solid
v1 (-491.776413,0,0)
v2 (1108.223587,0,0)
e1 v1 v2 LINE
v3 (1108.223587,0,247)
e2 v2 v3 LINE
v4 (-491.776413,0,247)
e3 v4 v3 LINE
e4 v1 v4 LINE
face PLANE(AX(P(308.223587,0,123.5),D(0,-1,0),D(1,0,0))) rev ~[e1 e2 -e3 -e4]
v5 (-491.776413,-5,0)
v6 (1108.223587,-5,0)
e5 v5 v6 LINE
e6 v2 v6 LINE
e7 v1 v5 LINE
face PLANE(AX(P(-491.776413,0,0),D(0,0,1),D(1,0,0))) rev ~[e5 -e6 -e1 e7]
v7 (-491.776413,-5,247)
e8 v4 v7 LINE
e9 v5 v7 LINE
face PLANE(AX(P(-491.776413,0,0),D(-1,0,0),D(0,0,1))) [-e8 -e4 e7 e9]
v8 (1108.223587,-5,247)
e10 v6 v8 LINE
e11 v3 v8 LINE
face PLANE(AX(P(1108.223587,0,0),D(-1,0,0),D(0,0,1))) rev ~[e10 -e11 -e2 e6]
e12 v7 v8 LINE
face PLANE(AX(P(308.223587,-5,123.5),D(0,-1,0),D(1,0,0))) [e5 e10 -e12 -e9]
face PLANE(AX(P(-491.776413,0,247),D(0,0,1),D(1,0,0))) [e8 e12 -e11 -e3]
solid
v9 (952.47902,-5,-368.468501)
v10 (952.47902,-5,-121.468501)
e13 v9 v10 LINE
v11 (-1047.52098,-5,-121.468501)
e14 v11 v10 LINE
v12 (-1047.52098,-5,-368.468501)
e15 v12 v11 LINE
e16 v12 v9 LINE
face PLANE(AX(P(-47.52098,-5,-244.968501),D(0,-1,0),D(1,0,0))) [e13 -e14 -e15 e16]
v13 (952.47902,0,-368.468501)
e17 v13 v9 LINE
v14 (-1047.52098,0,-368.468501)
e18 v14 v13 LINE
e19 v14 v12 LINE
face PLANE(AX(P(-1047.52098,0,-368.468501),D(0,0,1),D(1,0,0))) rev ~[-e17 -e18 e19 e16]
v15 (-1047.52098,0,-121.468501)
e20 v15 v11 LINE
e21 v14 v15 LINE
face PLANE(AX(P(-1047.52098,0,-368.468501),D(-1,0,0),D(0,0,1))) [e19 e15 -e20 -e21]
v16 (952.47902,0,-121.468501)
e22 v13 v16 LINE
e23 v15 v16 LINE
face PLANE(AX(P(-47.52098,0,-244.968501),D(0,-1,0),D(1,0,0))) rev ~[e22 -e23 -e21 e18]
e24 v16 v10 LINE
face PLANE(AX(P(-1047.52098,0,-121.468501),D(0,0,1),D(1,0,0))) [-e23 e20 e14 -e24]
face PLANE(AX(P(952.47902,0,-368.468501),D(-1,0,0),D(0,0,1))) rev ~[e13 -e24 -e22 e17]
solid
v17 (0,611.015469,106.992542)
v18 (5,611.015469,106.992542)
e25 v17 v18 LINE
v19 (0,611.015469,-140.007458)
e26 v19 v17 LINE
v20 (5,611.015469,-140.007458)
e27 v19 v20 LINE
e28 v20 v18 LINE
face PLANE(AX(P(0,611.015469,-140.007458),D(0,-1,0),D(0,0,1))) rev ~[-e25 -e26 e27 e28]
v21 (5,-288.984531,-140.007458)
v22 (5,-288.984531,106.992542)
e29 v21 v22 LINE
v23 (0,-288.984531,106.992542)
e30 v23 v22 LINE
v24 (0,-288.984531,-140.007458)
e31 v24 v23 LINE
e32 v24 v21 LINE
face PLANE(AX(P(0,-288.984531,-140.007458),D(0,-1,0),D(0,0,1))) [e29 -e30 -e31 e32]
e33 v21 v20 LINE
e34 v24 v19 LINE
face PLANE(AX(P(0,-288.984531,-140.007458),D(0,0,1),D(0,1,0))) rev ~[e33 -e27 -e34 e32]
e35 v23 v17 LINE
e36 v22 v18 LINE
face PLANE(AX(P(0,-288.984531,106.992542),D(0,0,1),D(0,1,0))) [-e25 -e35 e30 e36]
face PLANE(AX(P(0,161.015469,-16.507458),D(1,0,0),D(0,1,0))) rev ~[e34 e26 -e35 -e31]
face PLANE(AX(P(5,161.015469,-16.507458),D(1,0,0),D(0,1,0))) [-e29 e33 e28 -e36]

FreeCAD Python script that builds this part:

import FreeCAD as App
import Part
import Sketcher
from FreeCAD import Vector


def add_polygon(sketch, points):
    """Adds a closed chain of lines whose ends are joined by coincident constraints."""
    first, n = sketch.GeometryCount, len(points)
    for a, b in zip(points, points[1:] + points[:1]):
        sketch.addGeometry(Part.LineSegment(App.Vector(*a, 0), App.Vector(*b, 0)), False)
    for i in range(n):
        sketch.addConstraint(Sketcher.Constraint("Coincident", first + i, 2, first + (i + 1) % n, 1))

doc = App.newDocument("Part")
body = doc.addObject("PartDesign::Body", "Body")

sketch1 = doc.addObject("Sketcher::SketchObject", "Sketch")
body.addObject(sketch1)
sketch1.AttachmentSupport = (doc.XZ_Plane, [""])
sketch1.MapMode = "FlatFace"
add_polygon(sketch1, [(-1048, -121), (-1048, -368), (952, -368), (952, -121)])
sketch1.addConstraint(Sketcher.Constraint("Vertical", 0))
sketch1.addConstraint(Sketcher.Constraint("Horizontal", 1))
sketch1.addConstraint(Sketcher.Constraint("Vertical", 2))
sketch1.addConstraint(Sketcher.Constraint("Horizontal", 3))
sketch1.addConstraint(Sketcher.Constraint("DistanceX", 1, 1, 1, 2, 2000.0))
sketch1.addConstraint(Sketcher.Constraint("DistanceY", 0, 2, 0, 1, 247.0))
sketch1.addConstraint(Sketcher.Constraint("DistanceY", 0, 2, -1, 1, 368.468501))
sketch1.addConstraint(Sketcher.Constraint("DistanceX", 0, 2, -1, 1, 1047.52098))
pad1 = doc.addObject("PartDesign::Pad", "Pad")
body.addObject(pad1)
pad1.Profile = sketch1
pad1.Length = 5
body2 = doc.addObject("PartDesign::Body", "Body001")

sketch2 = doc.addObject("Sketcher::SketchObject", "Sketch001")
body2.addObject(sketch2)
sketch2.AttachmentSupport = (doc.getObject("YZ_Plane001"), [""])
sketch2.MapMode = "FlatFace"
add_polygon(sketch2, [(-289, 107), (-289, -140), (611, -140), (611, 107)])
sketch2.addConstraint(Sketcher.Constraint("Vertical", 0))
sketch2.addConstraint(Sketcher.Constraint("Horizontal", 1))
sketch2.addConstraint(Sketcher.Constraint("Vertical", 2))
sketch2.addConstraint(Sketcher.Constraint("Horizontal", 3))
sketch2.addConstraint(Sketcher.Constraint("DistanceX", 1, 1, 1, 2, 900.0))
sketch2.addConstraint(Sketcher.Constraint("DistanceY", 0, 2, 0, 1, 247.0))
sketch2.addConstraint(Sketcher.Constraint("DistanceX", 0, 2, -1, 1, 288.984531))
sketch2.addConstraint(Sketcher.Constraint("DistanceY", 0, 2, -1, 1, 140.007458))
pad2 = doc.addObject("PartDesign::Pad", "Pad001")
body2.addObject(pad2)
pad2.Profile = sketch2
pad2.Length = 5
body3 = doc.addObject("PartDesign::Body", "Body002")

sketch3 = doc.addObject("Sketcher::SketchObject", "Sketch002")
body3.addObject(sketch3)
sketch3.AttachmentSupport = (doc.getObject("XZ_Plane002"), [""])
sketch3.MapMode = "FlatFace"
add_polygon(sketch3, [(-492, 247), (-492, 0), (1108, 0), (1108, 247)])
sketch3.addConstraint(Sketcher.Constraint("Vertical", 0))
sketch3.addConstraint(Sketcher.Constraint("Horizontal", 1))
sketch3.addConstraint(Sketcher.Constraint("Vertical", 2))
sketch3.addConstraint(Sketcher.Constraint("Horizontal", 3))
sketch3.addConstraint(Sketcher.Constraint("PointOnObject", 0, 2, -1))
sketch3.addConstraint(Sketcher.Constraint("DistanceX", 1, 1, 1, 2, 1600.0))
sketch3.addConstraint(Sketcher.Constraint("DistanceY", 0, 2, 0, 1, 247.0))
sketch3.addConstraint(Sketcher.Constraint("DistanceX", 0, 2, -1, 1, 491.776413))
pad3 = doc.addObject("PartDesign::Pad", "Pad002")
body3.addObject(pad3)
pad3.Profile = sketch3
pad3.Length = 5

doc.recompute()
